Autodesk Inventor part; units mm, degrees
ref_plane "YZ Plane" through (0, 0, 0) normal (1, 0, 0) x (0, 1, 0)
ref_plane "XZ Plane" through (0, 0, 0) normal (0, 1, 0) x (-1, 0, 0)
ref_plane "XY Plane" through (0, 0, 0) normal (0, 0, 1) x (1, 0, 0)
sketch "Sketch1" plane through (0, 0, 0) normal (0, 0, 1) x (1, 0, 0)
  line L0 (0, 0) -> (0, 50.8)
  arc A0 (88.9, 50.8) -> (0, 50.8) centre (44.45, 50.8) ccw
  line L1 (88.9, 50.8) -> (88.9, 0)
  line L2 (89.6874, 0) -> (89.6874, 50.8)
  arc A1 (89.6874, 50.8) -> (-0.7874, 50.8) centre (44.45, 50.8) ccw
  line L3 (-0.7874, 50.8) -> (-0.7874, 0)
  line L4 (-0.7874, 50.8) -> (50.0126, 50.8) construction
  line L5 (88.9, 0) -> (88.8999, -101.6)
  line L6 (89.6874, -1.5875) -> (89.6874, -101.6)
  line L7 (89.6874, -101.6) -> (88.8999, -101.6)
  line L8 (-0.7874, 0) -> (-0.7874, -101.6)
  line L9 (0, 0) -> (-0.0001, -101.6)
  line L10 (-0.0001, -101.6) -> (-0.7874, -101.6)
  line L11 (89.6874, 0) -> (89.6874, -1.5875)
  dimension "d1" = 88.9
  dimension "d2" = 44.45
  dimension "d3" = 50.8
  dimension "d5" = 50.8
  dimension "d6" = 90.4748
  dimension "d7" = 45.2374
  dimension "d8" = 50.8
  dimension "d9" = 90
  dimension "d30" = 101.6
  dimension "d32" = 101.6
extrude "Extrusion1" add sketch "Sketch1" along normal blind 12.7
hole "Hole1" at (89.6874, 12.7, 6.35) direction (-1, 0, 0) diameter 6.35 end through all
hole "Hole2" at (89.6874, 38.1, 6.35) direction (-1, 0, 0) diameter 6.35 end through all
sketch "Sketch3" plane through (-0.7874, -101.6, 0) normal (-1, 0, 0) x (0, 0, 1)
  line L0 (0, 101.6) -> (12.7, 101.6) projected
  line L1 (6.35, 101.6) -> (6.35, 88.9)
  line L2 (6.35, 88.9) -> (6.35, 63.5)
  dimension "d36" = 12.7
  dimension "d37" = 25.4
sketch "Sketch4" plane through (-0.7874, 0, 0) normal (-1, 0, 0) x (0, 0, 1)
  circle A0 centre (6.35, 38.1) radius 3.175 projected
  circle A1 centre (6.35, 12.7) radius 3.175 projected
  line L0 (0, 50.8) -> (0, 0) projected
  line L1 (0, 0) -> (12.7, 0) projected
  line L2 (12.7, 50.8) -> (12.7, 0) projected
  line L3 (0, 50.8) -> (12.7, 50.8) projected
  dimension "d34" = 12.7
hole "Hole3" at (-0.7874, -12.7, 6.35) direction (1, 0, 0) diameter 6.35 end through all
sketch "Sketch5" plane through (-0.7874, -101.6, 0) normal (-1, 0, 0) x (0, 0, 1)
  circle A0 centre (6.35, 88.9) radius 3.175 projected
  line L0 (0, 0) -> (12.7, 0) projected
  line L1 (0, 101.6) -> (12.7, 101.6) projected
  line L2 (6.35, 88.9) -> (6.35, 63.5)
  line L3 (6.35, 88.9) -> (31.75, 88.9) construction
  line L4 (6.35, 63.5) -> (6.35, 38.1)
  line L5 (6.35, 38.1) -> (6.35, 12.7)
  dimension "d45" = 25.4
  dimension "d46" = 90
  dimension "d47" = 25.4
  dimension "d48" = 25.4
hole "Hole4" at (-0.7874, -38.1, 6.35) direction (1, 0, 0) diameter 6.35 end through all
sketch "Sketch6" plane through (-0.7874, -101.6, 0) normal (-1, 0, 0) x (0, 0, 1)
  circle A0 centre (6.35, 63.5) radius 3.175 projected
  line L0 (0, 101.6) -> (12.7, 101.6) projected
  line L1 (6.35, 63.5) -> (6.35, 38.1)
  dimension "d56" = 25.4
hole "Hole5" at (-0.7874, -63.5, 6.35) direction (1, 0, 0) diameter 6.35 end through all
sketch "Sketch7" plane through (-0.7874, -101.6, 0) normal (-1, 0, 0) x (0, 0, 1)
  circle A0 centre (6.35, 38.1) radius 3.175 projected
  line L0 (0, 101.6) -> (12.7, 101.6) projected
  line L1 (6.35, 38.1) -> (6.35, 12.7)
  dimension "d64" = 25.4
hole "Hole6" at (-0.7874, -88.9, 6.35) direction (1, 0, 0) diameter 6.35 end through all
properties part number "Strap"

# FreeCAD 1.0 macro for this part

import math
import FreeCAD as App
import Part
import Sketcher
from FreeCAD import Vector
Q = App.Units.Quantity

doc = App.newDocument("Part")
params = doc.addObject("Spreadsheet::Sheet", "Params")
for row, (alias, value) in enumerate([
    ("sketch1_height", "4 in"),
    ("sketch1_height2", "2 in"),
    ("sketch1_radius", "1.75 in"),
    ("sketch1_radius2", "1.781 in"),
    ("pad1_length", "0.5 in"),
    ("sketch2_diameter", "0.25 in"),
    ("hole_diameter", "0.25 in"),
    ("sketch3_diameter", "0.25 in"),
    ("hole2_diameter", "0.25 in"),
    ("sketch4_diameter", "0.25 in"),
    ("hole3_diameter", "0.25 in"),
    ("sketch5_diameter", "0.25 in"),
    ("hole4_diameter", "0.25 in"),
    ("sketch6_diameter", "0.25 in"),
    ("hole5_diameter", "0.25 in"),
    ("sketch7_diameter", "0.25 in"),
    ("hole6_diameter", "0.25 in"),
], start=1):
    params.set(f"A{row}", alias)
    params.set(f"B{row}", "=" + value)
    params.setAlias(f"B{row}", alias)

body = doc.addObject("PartDesign::Body", "Body")

# Sketch on XY plane
sketch1 = body.newObject("Sketcher::SketchObject", "Sketch")
sketch1.AttachmentSupport = (doc.getObject("XY_Plane"), [""])
sketch1.MapMode = "FlatFace"
sketch1.addGeometry([
    Part.LineSegment(Vector(0, -101.6, 0), Vector(0, 0, 0)),  # 0
    Part.LineSegment(Vector(0, 0, 0), Vector(0, 50.8, 0)),  # 1
    Part.ArcOfCircle(Part.Circle(Vector(44.5, 50.8, 0), Vector(0, 0, 1), 44.5), math.radians(0), math.radians(180)),  # 2
    Part.LineSegment(Vector(88.9, 50.8, 0), Vector(88.9, 0, 0)),  # 3
    Part.LineSegment(Vector(88.9, 0, 0), Vector(88.9, -101.6, 0)),  # 4
    Part.LineSegment(Vector(88.9, -101.6, 0), Vector(89.7, -101.6, 0)),  # 5
    Part.LineSegment(Vector(89.7, -101.6, 0), Vector(89.7, 50.8, 0)),  # 6
    Part.ArcOfCircle(Part.Circle(Vector(44.5, 50.8, 0), Vector(0, 0, 1), 45.2), math.radians(0), math.radians(180)),  # 7
    Part.LineSegment(Vector(-0.8, 50.8, 0), Vector(-0.8, -101.6, 0)),  # 8
    Part.LineSegment(Vector(-0.8, -101.6, 0), Vector(0, -101.6, 0)),  # 9
], False)
sketch1.addConstraint([
    Sketcher.Constraint("Coincident", 0, 2, 1, 1),
    Sketcher.Constraint("Tangent", 1, 2, 2, 2),
    Sketcher.Constraint("Tangent", 2, 1, 3, 1),
    Sketcher.Constraint("Coincident", 3, 2, 4, 1),
    Sketcher.Constraint("Coincident", 4, 2, 5, 1),
    Sketcher.Constraint("Coincident", 5, 2, 6, 1),
    Sketcher.Constraint("Tangent", 6, 2, 7, 1),
    Sketcher.Constraint("Tangent", 7, 2, 8, 1),
    Sketcher.Constraint("Coincident", 8, 2, 9, 1),
    Sketcher.Constraint("Coincident", 9, 2, 0, 1),
    Sketcher.Constraint("Vertical", 0),
    Sketcher.Constraint("Vertical", 1),
    Sketcher.Constraint("Vertical", 3),
    Sketcher.Constraint("Vertical", 4),
    Sketcher.Constraint("Horizontal", 5),
    Sketcher.Constraint("Vertical", 6),
    Sketcher.Constraint("Vertical", 8),
    Sketcher.Constraint("Horizontal", 9),
    Sketcher.Constraint("Coincident", 0, 2, -1, 1),
    Sketcher.Constraint("Coincident", 7, 3, 2, 3),
    Sketcher.Constraint("PointOnObject", 3, 2, -1),
    Sketcher.Constraint("Horizontal", 5, 2, 8, 2),
    Sketcher.Constraint("DistanceY", 0, 1, 0, 2, Q("4 in")),
    Sketcher.Constraint("DistanceY", 1, 1, 1, 2, Q("2 in")),
    Sketcher.Constraint("Radius", 2, Q("1.75 in")),
    Sketcher.Constraint("Radius", 7, Q("1.781 in")),
])
sketch1.setExpression("Constraints[22]", "Params.sketch1_height")
sketch1.setExpression("Constraints[23]", "Params.sketch1_height2")
sketch1.setExpression("Constraints[24]", "Params.sketch1_radius")
sketch1.setExpression("Constraints[25]", "Params.sketch1_radius2")
pad1 = body.newObject("PartDesign::Pad", "Pad")
pad1.Profile = sketch1
pad1.setExpression("Length", "Params.pad1_length")

# Sketch on YZ plane
sketch2 = body.newObject("Sketcher::SketchObject", "Sketch001")
sketch2.AttachmentSupport = (doc.getObject("YZ_Plane"), [""])
sketch2.MapMode = "FlatFace"
sketch2.AttachmentOffset = App.Placement(Vector(0, 0, 3.531 * 25.4), App.Rotation())
sketch2.addGeometry(Part.Circle(Vector(12.7, 6.3, 0), Vector(0, 0, 1), 3.2), False)
sketch2.addConstraint([
    Sketcher.Constraint("Diameter", 0, Q("0.25 in")),
    Sketcher.Constraint("DistanceX", -1, 1, 0, 3, Q("0.5 in")),
    Sketcher.Constraint("DistanceY", -1, 1, 0, 3, Q("0.25 in")),
])
sketch2.setExpression("Constraints[0]", "Params.sketch2_diameter")
doc.recompute()
hole = body.newObject("PartDesign::Hole", "Hole")
hole.Profile = sketch2
hole.ThreadType = "None"
hole.setExpression("Diameter", "Params.hole_diameter")
hole.DepthType = "ThroughAll"

# Sketch on YZ plane
sketch3 = body.newObject("Sketcher::SketchObject", "Sketch002")
sketch3.AttachmentSupport = (doc.getObject("YZ_Plane"), [""])
sketch3.MapMode = "FlatFace"
sketch3.AttachmentOffset = App.Placement(Vector(0, 0, 3.531 * 25.4), App.Rotation())
sketch3.addGeometry(Part.Circle(Vector(38.1, 6.3, 0), Vector(0, 0, 1), 3.2), False)
sketch3.addConstraint([
    Sketcher.Constraint("Diameter", 0, Q("0.25 in")),
    Sketcher.Constraint("DistanceX", -1, 1, 0, 3, Q("1.5 in")),
    Sketcher.Constraint("DistanceY", -1, 1, 0, 3, Q("0.25 in")),
])
sketch3.setExpression("Constraints[0]", "Params.sketch3_diameter")
doc.recompute()
hole2 = body.newObject("PartDesign::Hole", "Hole001")
hole2.Profile = sketch3
hole2.ThreadType = "None"
hole2.setExpression("Diameter", "Params.hole2_diameter")
hole2.DepthType = "ThroughAll"

# Sketch on YZ plane
sketch4 = body.newObject("Sketcher::SketchObject", "Sketch003")
sketch4.AttachmentSupport = (doc.getObject("YZ_Plane"), [""])
sketch4.MapMode = "FlatFace"
sketch4.AttachmentOffset = App.Placement(Vector(0, 0, -0.031 * 25.4), App.Rotation())
sketch4.addGeometry(Part.Circle(Vector(-12.7, 6.3, 0), Vector(0, 0, 1), 3.2), False)
sketch4.addConstraint([
    Sketcher.Constraint("Diameter", 0, Q("0.25 in")),
    Sketcher.Constraint("DistanceX", 0, 3, -1, 1, Q("0.5 in")),
    Sketcher.Constraint("DistanceY", -1, 1, 0, 3, Q("0.25 in")),
])
sketch4.setExpression("Constraints[0]", "Params.sketch4_diameter")
doc.recompute()
hole3 = body.newObject("PartDesign::Hole", "Hole002")
hole3.Profile = sketch4
hole3.ThreadType = "None"
hole3.setExpression("Diameter", "Params.hole3_diameter")
hole3.DepthType = "ThroughAll"
hole3.Reversed = True

# Sketch on YZ plane
sketch5 = body.newObject("Sketcher::SketchObject", "Sketch004")
sketch5.AttachmentSupport = (doc.getObject("YZ_Plane"), [""])
sketch5.MapMode = "FlatFace"
sketch5.AttachmentOffset = App.Placement(Vector(0, 0, -0.031 * 25.4), App.Rotation())
sketch5.addGeometry(Part.Circle(Vector(-38.1, 6.3, 0), Vector(0, 0, 1), 3.2), False)
sketch5.addConstraint([
    Sketcher.Constraint("Diameter", 0, Q("0.25 in")),
    Sketcher.Constraint("DistanceX", 0, 3, -1, 1, Q("1.5 in")),
    Sketcher.Constraint("DistanceY", -1, 1, 0, 3, Q("0.25 in")),
])
sketch5.setExpression("Constraints[0]", "Params.sketch5_diameter")
doc.recompute()
hole4 = body.newObject("PartDesign::Hole", "Hole003")
hole4.Profile = sketch5
hole4.ThreadType = "None"
hole4.setExpression("Diameter", "Params.hole4_diameter")
hole4.DepthType = "ThroughAll"
hole4.Reversed = True

# Sketch on YZ plane
sketch6 = body.newObject("Sketcher::SketchObject", "Sketch005")
sketch6.AttachmentSupport = (doc.getObject("YZ_Plane"), [""])
sketch6.MapMode = "FlatFace"
sketch6.AttachmentOffset = App.Placement(Vector(0, 0, -0.031 * 25.4), App.Rotation())
sketch6.addGeometry(Part.Circle(Vector(-63.5, 6.3, 0), Vector(0, 0, 1), 3.2), False)
sketch6.addConstraint([
    Sketcher.Constraint("Diameter", 0, Q("0.25 in")),
    Sketcher.Constraint("DistanceX", 0, 3, -1, 1, Q("2.5 in")),
    Sketcher.Constraint("DistanceY", -1, 1, 0, 3, Q("0.25 in")),
])
sketch6.setExpression("Constraints[0]", "Params.sketch6_diameter")
doc.recompute()
hole5 = body.newObject("PartDesign::Hole", "Hole004")
hole5.Profile = sketch6
hole5.ThreadType = "None"
hole5.setExpression("Diameter", "Params.hole5_diameter")
hole5.DepthType = "ThroughAll"
hole5.Reversed = True

# Sketch on YZ plane
sketch7 = body.newObject("Sketcher::SketchObject", "Sketch006")
sketch7.AttachmentSupport = (doc.getObject("YZ_Plane"), [""])
sketch7.MapMode = "FlatFace"
sketch7.AttachmentOffset = App.Placement(Vector(0, 0, -0.031 * 25.4), App.Rotation())
sketch7.addGeometry(Part.Circle(Vector(-88.9, 6.3, 0), Vector(0, 0, 1), 3.2), False)
sketch7.addConstraint([
    Sketcher.Constraint("Diameter", 0, Q("0.25 in")),
    Sketcher.Constraint("DistanceX", 0, 3, -1, 1, Q("3.5 in")),
    Sketcher.Constraint("DistanceY", -1, 1, 0, 3, Q("0.25 in")),
])
sketch7.setExpression("Constraints[0]", "Params.sketch7_diameter")
doc.recompute()
hole6 = body.newObject("PartDesign::Hole", "Hole005")
hole6.Profile = sketch7
hole6.ThreadType = "None"
hole6.setExpression("Diameter", "Params.hole6_diameter")
hole6.DepthType = "ThroughAll"
hole6.Reversed = True

doc.recompute()
